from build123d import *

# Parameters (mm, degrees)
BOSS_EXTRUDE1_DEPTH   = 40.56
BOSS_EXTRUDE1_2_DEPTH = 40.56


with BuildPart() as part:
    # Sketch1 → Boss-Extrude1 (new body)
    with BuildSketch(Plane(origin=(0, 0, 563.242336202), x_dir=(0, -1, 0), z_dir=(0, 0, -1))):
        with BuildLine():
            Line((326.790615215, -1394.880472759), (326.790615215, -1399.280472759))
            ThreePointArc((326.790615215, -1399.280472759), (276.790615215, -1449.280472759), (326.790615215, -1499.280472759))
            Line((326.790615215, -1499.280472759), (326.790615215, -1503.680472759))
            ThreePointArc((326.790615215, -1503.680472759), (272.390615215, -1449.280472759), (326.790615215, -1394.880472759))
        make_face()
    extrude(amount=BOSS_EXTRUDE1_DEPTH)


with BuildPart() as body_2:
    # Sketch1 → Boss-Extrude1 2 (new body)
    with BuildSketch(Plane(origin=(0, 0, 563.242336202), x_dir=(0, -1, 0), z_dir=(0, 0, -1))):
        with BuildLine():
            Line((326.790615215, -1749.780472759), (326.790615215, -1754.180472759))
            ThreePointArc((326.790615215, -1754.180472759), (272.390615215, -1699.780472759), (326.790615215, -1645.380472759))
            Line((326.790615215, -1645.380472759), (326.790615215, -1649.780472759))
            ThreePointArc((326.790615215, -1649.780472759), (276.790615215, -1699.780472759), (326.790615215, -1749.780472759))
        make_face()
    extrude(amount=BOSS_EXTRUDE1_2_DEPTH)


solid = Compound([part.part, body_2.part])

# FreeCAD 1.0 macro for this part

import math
import FreeCAD as App
import Part
import Sketcher
Q = App.Units.Quantity

doc = App.newDocument("Part")
body = doc.addObject("PartDesign::Body", "Body")

sketch1 = doc.addObject("Sketcher::SketchObject", "Sketch")
body.addObject(sketch1)
sketch1.AttachmentSupport = (doc.XY_Plane, [""])
sketch1.MapMode = "FlatFace"
sketch1.AttachmentOffset = App.Placement(App.Vector(0, 0, 563.242336), App.Rotation())
sketch1.addGeometry([
    Part.LineSegment(App.Vector(1399.3, -326.8, 0), App.Vector(1394.9, -326.8, 0)),
    Part.ArcOfCircle(Part.Circle(App.Vector(1449.3, -326.8, 0), App.Vector(0, 0, 1), 54.4), math.radians(0), math.radians(180)),
    Part.LineSegment(App.Vector(1503.7, -326.8, 0), App.Vector(1499.3, -326.8, 0)),
    Part.ArcOfCircle(Part.Circle(App.Vector(1449.3, -326.8, 0), App.Vector(0, 0, 1), 50), math.radians(0), math.radians(180)),
], False)
sketch1.addConstraint([
    Sketcher.Constraint("Coincident", 0, 2, 1, 2),
    Sketcher.Constraint("Coincident", 1, 1, 2, 1),
    Sketcher.Constraint("Coincident", 2, 2, 3, 1),
    Sketcher.Constraint("Coincident", 3, 2, 0, 1),
    Sketcher.Constraint("Horizontal", 0),
    Sketcher.Constraint("Horizontal", 2),
    Sketcher.Constraint("Coincident", 3, 3, 1, 3),
    Sketcher.Constraint("Horizontal", 3, 3, 0, 2),
    Sketcher.Constraint("Horizontal", 0, 2, 1, 1),
    Sketcher.Constraint("Radius", 3, Q("50 mm")),
    Sketcher.Constraint("Radius", 1, Q("54.4 mm")),
    Sketcher.Constraint("DistanceX", -1, 1, 1, 3, Q("1449.280473 mm")),
    Sketcher.Constraint("DistanceY", 1, 3, -1, 1, Q("326.790615 mm")),
])
pad1 = doc.addObject("PartDesign::Pad", "Pad")
body.addObject(pad1)
pad1.Profile = sketch1
pad1.Length = 40.56
pad1.Reversed = True
body2 = doc.addObject("PartDesign::Body", "Body001")

sketch2 = doc.addObject("Sketcher::SketchObject", "Sketch001")
body2.addObject(sketch2)
sketch2.AttachmentSupport = (doc.getObject("XY_Plane001"), [""])
sketch2.MapMode = "FlatFace"
sketch2.AttachmentOffset = App.Placement(App.Vector(0, 0, 563.242336), App.Rotation())
sketch2.addGeometry([
    Part.LineSegment(App.Vector(1754.2, -326.8, 0), App.Vector(1749.8, -326.8, 0)),
    Part.ArcOfCircle(Part.Circle(App.Vector(1699.8, -326.8, 0), App.Vector(0, 0, 1), 50), math.radians(0), math.radians(180)),
    Part.LineSegment(App.Vector(1649.8, -326.8, 0), App.Vector(1645.4, -326.8, 0)),
    Part.ArcOfCircle(Part.Circle(App.Vector(1699.8, -326.8, 0), App.Vector(0, 0, 1), 54.4), math.radians(0), math.radians(180)),
], False)
sketch2.addConstraint([
    Sketcher.Constraint("Coincident", 0, 2, 1, 1),
    Sketcher.Constraint("Coincident", 1, 2, 2, 1),
    Sketcher.Constraint("Coincident", 2, 2, 3, 2),
    Sketcher.Constraint("Coincident", 3, 1, 0, 1),
    Sketcher.Constraint("Horizontal", 0),
    Sketcher.Constraint("Horizontal", 2),
    Sketcher.Constraint("Coincident", 3, 3, 1, 3),
    Sketcher.Constraint("Horizontal", 3, 3, 0, 2),
    Sketcher.Constraint("Horizontal", 0, 2, 1, 2),
    Sketcher.Constraint("Radius", 1, Q("50 mm")),
    Sketcher.Constraint("Radius", 3, Q("54.4 mm")),
    Sketcher.Constraint("DistanceX", -1, 1, 1, 3, Q("1699.780473 mm")),
    Sketcher.Constraint("DistanceY", 1, 3, -1, 1, Q("326.790615 mm")),
])
pad2 = doc.addObject("PartDesign::Pad", "Pad001")
body2.addObject(pad2)
pad2.Profile = sketch2
pad2.Length = 40.56
pad2.Reversed = True

doc.recompute()
